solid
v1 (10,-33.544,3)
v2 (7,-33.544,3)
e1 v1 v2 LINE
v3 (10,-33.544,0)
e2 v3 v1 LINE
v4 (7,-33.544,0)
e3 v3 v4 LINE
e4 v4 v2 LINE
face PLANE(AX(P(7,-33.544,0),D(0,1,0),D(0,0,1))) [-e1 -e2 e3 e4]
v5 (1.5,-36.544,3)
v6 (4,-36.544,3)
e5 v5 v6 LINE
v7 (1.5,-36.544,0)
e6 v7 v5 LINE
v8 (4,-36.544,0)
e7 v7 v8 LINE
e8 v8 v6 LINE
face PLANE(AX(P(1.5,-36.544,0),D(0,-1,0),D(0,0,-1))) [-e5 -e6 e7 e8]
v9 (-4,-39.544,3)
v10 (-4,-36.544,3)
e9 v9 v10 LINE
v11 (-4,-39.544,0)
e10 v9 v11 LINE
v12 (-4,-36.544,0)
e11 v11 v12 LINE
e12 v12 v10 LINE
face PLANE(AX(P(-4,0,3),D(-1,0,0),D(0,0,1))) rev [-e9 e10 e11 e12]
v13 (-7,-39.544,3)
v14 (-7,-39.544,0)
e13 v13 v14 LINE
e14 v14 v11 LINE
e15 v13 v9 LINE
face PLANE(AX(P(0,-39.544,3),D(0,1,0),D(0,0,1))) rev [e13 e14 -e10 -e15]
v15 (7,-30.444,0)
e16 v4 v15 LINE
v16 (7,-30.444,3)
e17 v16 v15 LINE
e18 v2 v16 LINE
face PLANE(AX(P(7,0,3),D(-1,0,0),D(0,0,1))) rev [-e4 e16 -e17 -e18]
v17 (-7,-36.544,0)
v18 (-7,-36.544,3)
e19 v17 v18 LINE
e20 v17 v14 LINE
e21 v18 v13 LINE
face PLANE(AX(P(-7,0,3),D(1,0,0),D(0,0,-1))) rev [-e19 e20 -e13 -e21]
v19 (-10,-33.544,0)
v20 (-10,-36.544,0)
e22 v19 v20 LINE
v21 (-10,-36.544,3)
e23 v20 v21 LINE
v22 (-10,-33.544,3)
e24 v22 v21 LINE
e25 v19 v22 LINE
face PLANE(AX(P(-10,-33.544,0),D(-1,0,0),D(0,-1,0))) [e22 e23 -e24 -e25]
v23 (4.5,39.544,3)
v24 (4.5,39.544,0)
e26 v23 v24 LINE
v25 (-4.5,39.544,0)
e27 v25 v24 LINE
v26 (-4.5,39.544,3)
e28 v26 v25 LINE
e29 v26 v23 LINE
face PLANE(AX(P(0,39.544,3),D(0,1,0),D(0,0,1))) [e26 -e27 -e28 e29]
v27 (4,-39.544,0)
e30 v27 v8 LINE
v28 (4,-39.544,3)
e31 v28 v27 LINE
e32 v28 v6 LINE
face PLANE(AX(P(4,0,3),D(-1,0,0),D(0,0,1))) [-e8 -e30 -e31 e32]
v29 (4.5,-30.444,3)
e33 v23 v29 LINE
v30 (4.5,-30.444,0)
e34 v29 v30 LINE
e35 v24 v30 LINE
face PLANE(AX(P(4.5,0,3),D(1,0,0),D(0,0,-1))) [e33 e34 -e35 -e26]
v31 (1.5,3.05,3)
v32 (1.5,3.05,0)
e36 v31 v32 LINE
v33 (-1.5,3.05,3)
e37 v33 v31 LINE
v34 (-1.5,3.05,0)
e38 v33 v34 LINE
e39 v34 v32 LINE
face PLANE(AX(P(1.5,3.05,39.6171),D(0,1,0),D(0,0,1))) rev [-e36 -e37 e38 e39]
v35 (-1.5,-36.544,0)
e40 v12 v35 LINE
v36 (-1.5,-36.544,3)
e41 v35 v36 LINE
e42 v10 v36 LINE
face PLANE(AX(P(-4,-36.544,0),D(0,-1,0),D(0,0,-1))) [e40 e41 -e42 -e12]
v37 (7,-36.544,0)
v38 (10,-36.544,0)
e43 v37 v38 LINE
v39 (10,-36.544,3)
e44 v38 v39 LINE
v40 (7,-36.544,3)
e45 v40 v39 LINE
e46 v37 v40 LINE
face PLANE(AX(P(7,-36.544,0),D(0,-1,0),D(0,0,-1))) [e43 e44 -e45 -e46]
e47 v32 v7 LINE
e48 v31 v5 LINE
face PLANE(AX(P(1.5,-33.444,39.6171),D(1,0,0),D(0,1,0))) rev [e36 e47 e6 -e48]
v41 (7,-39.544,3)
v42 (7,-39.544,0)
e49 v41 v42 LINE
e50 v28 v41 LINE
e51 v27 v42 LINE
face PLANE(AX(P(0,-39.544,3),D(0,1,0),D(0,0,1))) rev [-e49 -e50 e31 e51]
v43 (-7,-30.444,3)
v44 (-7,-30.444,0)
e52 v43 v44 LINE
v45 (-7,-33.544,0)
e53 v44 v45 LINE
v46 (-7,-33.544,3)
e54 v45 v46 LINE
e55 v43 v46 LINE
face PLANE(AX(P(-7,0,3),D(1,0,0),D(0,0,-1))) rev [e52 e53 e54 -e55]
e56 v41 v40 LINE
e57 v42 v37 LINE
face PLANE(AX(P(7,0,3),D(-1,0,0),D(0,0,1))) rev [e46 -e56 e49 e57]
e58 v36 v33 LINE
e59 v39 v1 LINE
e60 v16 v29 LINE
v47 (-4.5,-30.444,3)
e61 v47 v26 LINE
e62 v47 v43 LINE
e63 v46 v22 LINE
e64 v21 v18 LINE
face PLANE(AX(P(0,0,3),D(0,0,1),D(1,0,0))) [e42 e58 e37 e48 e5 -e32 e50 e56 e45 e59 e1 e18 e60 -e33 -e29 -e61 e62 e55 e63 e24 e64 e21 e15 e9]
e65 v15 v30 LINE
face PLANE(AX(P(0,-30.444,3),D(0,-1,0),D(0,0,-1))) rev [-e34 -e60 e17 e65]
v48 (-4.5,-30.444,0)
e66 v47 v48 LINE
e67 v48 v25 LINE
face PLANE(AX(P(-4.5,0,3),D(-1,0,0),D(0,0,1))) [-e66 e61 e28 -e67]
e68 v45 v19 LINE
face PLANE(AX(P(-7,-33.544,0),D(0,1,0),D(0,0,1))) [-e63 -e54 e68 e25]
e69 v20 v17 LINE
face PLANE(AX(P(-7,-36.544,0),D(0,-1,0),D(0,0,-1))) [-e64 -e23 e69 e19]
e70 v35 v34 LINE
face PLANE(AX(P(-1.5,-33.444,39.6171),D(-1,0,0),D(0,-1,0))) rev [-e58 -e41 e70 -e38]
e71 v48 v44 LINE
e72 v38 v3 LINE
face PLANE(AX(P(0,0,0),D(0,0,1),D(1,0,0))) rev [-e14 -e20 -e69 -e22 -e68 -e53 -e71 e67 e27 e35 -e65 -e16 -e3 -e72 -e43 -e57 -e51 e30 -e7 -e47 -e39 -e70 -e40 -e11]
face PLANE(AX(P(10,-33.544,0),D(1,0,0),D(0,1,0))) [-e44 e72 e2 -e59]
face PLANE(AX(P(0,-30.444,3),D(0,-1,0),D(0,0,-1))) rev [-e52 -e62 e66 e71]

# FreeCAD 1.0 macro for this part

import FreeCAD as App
import Part
import Sketcher
from FreeCAD import Vector
Q = App.Units.Quantity

doc = App.newDocument("Part")
body = doc.addObject("PartDesign::Body", "Body")

# Sketch on XY plane
sketch1 = doc.addObject("Sketcher::SketchObject", "Sketch")
body.addObject(sketch1)
sketch1.AttachmentSupport = (doc.XY_Plane, [""])
sketch1.MapMode = "FlatFace"
sketch1.addGeometry(Part.LineSegment(Vector(4.5, 39.5, 0), Vector(-4.5, 39.5, 0)), False)
sketch1.addGeometry(Part.LineSegment(Vector(-4.5, 39.5, 0), Vector(-4.5, -30.4, 0)), False)
sketch1.addGeometry(Part.LineSegment(Vector(-4.5, -30.4, 0), Vector(-7, -30.4, 0)), False)
sketch1.addGeometry(Part.LineSegment(Vector(-7, -30.4, 0), Vector(-7, -39.5, 0)), False)
sketch1.addGeometry(Part.LineSegment(Vector(-7, -39.5, 0), Vector(-4, -39.5, 0)), False)
sketch1.addGeometry(Part.LineSegment(Vector(-4, -39.5, 0), Vector(-4, -33.4, 0)), False)
sketch1.addGeometry(Part.LineSegment(Vector(-4, -33.4, 0), Vector(4, -33.4, 0)), False)
sketch1.addGeometry(Part.LineSegment(Vector(4, -33.4, 0), Vector(4, -39.5, 0)), False)
sketch1.addGeometry(Part.LineSegment(Vector(4, -39.5, 0), Vector(7, -39.5, 0)), False)
sketch1.addGeometry(Part.LineSegment(Vector(7, -39.5, 0), Vector(7, -30.4, 0)), False)
sketch1.addGeometry(Part.LineSegment(Vector(7, -30.4, 0), Vector(4.5, -30.4, 0)), False)
sketch1.addGeometry(Part.LineSegment(Vector(4.5, -30.4, 0), Vector(4.5, 39.5, 0)), False)
sketch1.addConstraint(Sketcher.Constraint("Coincident", 0, 2, 1, 1))
sketch1.addConstraint(Sketcher.Constraint("Coincident", 1, 2, 2, 1))
sketch1.addConstraint(Sketcher.Constraint("Coincident", 2, 2, 3, 1))
sketch1.addConstraint(Sketcher.Constraint("Coincident", 3, 2, 4, 1))
sketch1.addConstraint(Sketcher.Constraint("Coincident", 4, 2, 5, 1))
sketch1.addConstraint(Sketcher.Constraint("Coincident", 5, 2, 6, 1))
sketch1.addConstraint(Sketcher.Constraint("Coincident", 6, 2, 7, 1))
sketch1.addConstraint(Sketcher.Constraint("Coincident", 7, 2, 8, 1))
sketch1.addConstraint(Sketcher.Constraint("Coincident", 8, 2, 9, 1))
sketch1.addConstraint(Sketcher.Constraint("Coincident", 9, 2, 10, 1))
sketch1.addConstraint(Sketcher.Constraint("Coincident", 10, 2, 11, 1))
sketch1.addConstraint(Sketcher.Constraint("Coincident", 11, 2, 0, 1))
sketch1.addConstraint(Sketcher.Constraint("Horizontal", 0))
sketch1.addConstraint(Sketcher.Constraint("Vertical", 1))
sketch1.addConstraint(Sketcher.Constraint("Horizontal", 2))
sketch1.addConstraint(Sketcher.Constraint("Vertical", 3))
sketch1.addConstraint(Sketcher.Constraint("Horizontal", 4))
sketch1.addConstraint(Sketcher.Constraint("Vertical", 5))
sketch1.addConstraint(Sketcher.Constraint("Horizontal", 6))
sketch1.addConstraint(Sketcher.Constraint("Vertical", 7))
sketch1.addConstraint(Sketcher.Constraint("Horizontal", 8))
sketch1.addConstraint(Sketcher.Constraint("Vertical", 9))
sketch1.addConstraint(Sketcher.Constraint("Horizontal", 10))
sketch1.addConstraint(Sketcher.Constraint("Vertical", 11))
sketch1.addConstraint(Sketcher.Constraint("Symmetric", 4, 2, 7, 2, -2))
sketch1.addConstraint(Sketcher.Constraint("Symmetric", 2, 2, 9, 2, -2))
sketch1.addConstraint(Sketcher.Constraint("Equal", 2, 10))
sketch1.addConstraint(Sketcher.Constraint("DistanceX", 0, 2, 0, 1, Q("9 mm")))
sketch1.addConstraint(Sketcher.Constraint("DistanceX", 4, 1, 4, 2, Q("3 mm")))
sketch1.addConstraint(Sketcher.Constraint("DistanceX", 6, 1, 6, 2, Q("8 mm")))
sketch1.addConstraint(Sketcher.Constraint("DistanceY", 3, 2, 3, 1, Q("9.1 mm")))
sketch1.addConstraint(Sketcher.Constraint("DistanceY", 5, 1, 5, 2, Q("6.1 mm")))
sketch1.addConstraint(Sketcher.Constraint("DistanceY", 1, 2, 1, 1, Q("69.988 mm")))
sketch1.addConstraint(Sketcher.Constraint("DistanceY", -1, 1, 0, 2, Q("39.544 mm")))
pad1 = doc.addObject("PartDesign::Pad", "Pad")
body.addObject(pad1)
pad1.Profile = sketch1
pad1.Length = 3

# Sketch on XY plane
sketch2 = doc.addObject("Sketcher::SketchObject", "Sketch001")
body.addObject(sketch2)
sketch2.AttachmentSupport = (doc.XY_Plane, [""])
sketch2.MapMode = "FlatFace"
sketch2.addGeometry(Part.LineSegment(Vector(1.5, 3, 0), Vector(1.5, -33.4, 0)), False)
sketch2.addGeometry(Part.LineSegment(Vector(1.5, -33.4, 0), Vector(-1.5, -33.4, 0)), False)
sketch2.addGeometry(Part.LineSegment(Vector(-1.5, -33.4, 0), Vector(-1.5, 3, 0)), False)
sketch2.addGeometry(Part.LineSegment(Vector(-1.5, 3, 0), Vector(1.5, 3, 0)), False)
sketch2.addConstraint(Sketcher.Constraint("Coincident", 0, 2, 1, 1))
sketch2.addConstraint(Sketcher.Constraint("Coincident", 1, 2, 2, 1))
sketch2.addConstraint(Sketcher.Constraint("Coincident", 2, 2, 3, 1))
sketch2.addConstraint(Sketcher.Constraint("Coincident", 3, 2, 0, 1))
sketch2.addConstraint(Sketcher.Constraint("Vertical", 0))
sketch2.addConstraint(Sketcher.Constraint("Horizontal", 1))
sketch2.addConstraint(Sketcher.Constraint("Vertical", 2))
sketch2.addConstraint(Sketcher.Constraint("Horizontal", 3))
sketch2.addConstraint(Sketcher.Constraint("DistanceX", 1, 2, 1, 1, Q("3 mm")))
sketch2.addConstraint(Sketcher.Constraint("DistanceX", -1, 1, 0, 2, Q("1.5 mm")))
sketch2.addConstraint(Sketcher.Constraint("DistanceY", 0, 2, 0, 1, Q("36.494 mm")))
sketch2.addConstraint(Sketcher.Constraint("DistanceY", -1, 1, 2, 2, Q("3.05 mm")))
pocket1 = doc.addObject("PartDesign::Pocket", "Pocket")
body.addObject(pocket1)
pocket1.Profile = sketch2
pocket1.Length = 3
pocket1.Reversed = True

# Sketch on XY plane
sketch3 = doc.addObject("Sketcher::SketchObject", "Sketch002")
body.addObject(sketch3)
sketch3.AttachmentSupport = (doc.XY_Plane, [""])
sketch3.MapMode = "FlatFace"
sketch3.AttachmentOffset = App.Placement(Vector(0, 0, 3), App.Rotation())
sketch3.addGeometry(Part.LineSegment(Vector(-10, -33.5, 0), Vector(-10, -36.5, 0)), False)
sketch3.addGeometry(Part.LineSegment(Vector(-10, -36.5, 0), Vector(-7, -36.5, 0)), False)
sketch3.addGeometry(Part.LineSegment(Vector(-7, -36.5, 0), Vector(-7, -33.5, 0)), False)
sketch3.addGeometry(Part.LineSegment(Vector(-7, -33.5, 0), Vector(-10, -33.5, 0)), False)
sketch3.addGeometry(Part.LineSegment(Vector(7, -33.5, 0), Vector(7, -36.5, 0)), False)
sketch3.addGeometry(Part.LineSegment(Vector(7, -36.5, 0), Vector(10, -36.5, 0)), False)
sketch3.addGeometry(Part.LineSegment(Vector(10, -36.5, 0), Vector(10, -33.5, 0)), False)
sketch3.addGeometry(Part.LineSegment(Vector(10, -33.5, 0), Vector(7, -33.5, 0)), False)
sketch3.addConstraint(Sketcher.Constraint("Coincident", 0, 2, 1, 1))
sketch3.addConstraint(Sketcher.Constraint("Coincident", 1, 2, 2, 1))
sketch3.addConstraint(Sketcher.Constraint("Coincident", 2, 2, 3, 1))
sketch3.addConstraint(Sketcher.Constraint("Coincident", 3, 2, 0, 1))
sketch3.addConstraint(Sketcher.Constraint("Coincident", 4, 2, 5, 1))
sketch3.addConstraint(Sketcher.Constraint("Coincident", 5, 2, 6, 1))
sketch3.addConstraint(Sketcher.Constraint("Coincident", 6, 2, 7, 1))
sketch3.addConstraint(Sketcher.Constraint("Coincident", 7, 2, 4, 1))
sketch3.addConstraint(Sketcher.Constraint("Vertical", 0))
sketch3.addConstraint(Sketcher.Constraint("Horizontal", 1))
sketch3.addConstraint(Sketcher.Constraint("Vertical", 2))
sketch3.addConstraint(Sketcher.Constraint("Horizontal", 3))
sketch3.addConstraint(Sketcher.Constraint("Vertical", 4))
sketch3.addConstraint(Sketcher.Constraint("Horizontal", 5))
sketch3.addConstraint(Sketcher.Constraint("Vertical", 6))
sketch3.addConstraint(Sketcher.Constraint("Horizontal", 7))
sketch3.addConstraint(Sketcher.Constraint("Symmetric", 1, 2, 4, 2, -2))
sketch3.addConstraint(Sketcher.Constraint("Symmetric", 3, 2, 6, 2, -2))
sketch3.addConstraint(Sketcher.Constraint("Equal", 7, 0))
sketch3.addConstraint(Sketcher.Constraint("DistanceX", 1, 1, 1, 2, Q("3 mm")))
sketch3.addConstraint(Sketcher.Constraint("DistanceX", 0, 2, -1, 1, Q("10 mm")))
sketch3.addConstraint(Sketcher.Constraint("DistanceY", 0, 2, -1, 1, Q("36.544 mm")))
pad2 = doc.addObject("PartDesign::Pad", "Pad001")
body.addObject(pad2)
pad2.Profile = sketch3
pad2.Length = 3
pad2.Reversed = True

# Sketch on XY plane
sketch4 = doc.addObject("Sketcher::SketchObject", "Sketch003")
body.addObject(sketch4)
sketch4.AttachmentSupport = (doc.XY_Plane, [""])
sketch4.MapMode = "FlatFace"
sketch4.AttachmentOffset = App.Placement(Vector(0, 0, 3), App.Rotation())
sketch4.addGeometry(Part.LineSegment(Vector(-4, -33.4, 0), Vector(-4, -36.5, 0)), False)
sketch4.addGeometry(Part.LineSegment(Vector(-4, -36.5, 0), Vector(-1.5, -36.5, 0)), False)
sketch4.addGeometry(Part.LineSegment(Vector(-1.5, -36.5, 0), Vector(-1.5, -33.4, 0)), False)
sketch4.addGeometry(Part.LineSegment(Vector(-1.5, -33.4, 0), Vector(-4, -33.4, 0)), False)
sketch4.addGeometry(Part.LineSegment(Vector(1.5, -33.4, 0), Vector(1.5, -36.5, 0)), False)
sketch4.addGeometry(Part.LineSegment(Vector(1.5, -36.5, 0), Vector(4, -36.5, 0)), False)
sketch4.addGeometry(Part.LineSegment(Vector(4, -36.5, 0), Vector(4, -33.4, 0)), False)
sketch4.addGeometry(Part.LineSegment(Vector(4, -33.4, 0), Vector(1.5, -33.4, 0)), False)
sketch4.addConstraint(Sketcher.Constraint("Coincident", 0, 2, 1, 1))
sketch4.addConstraint(Sketcher.Constraint("Coincident", 1, 2, 2, 1))
sketch4.addConstraint(Sketcher.Constraint("Coincident", 2, 2, 3, 1))
sketch4.addConstraint(Sketcher.Constraint("Coincident", 3, 2, 0, 1))
sketch4.addConstraint(Sketcher.Constraint("Coincident", 4, 2, 5, 1))
sketch4.addConstraint(Sketcher.Constraint("Coincident", 5, 2, 6, 1))
sketch4.addConstraint(Sketcher.Constraint("Coincident", 6, 2, 7, 1))
sketch4.addConstraint(Sketcher.Constraint("Coincident", 7, 2, 4, 1))
sketch4.addConstraint(Sketcher.Constraint("Vertical", 0))
sketch4.addConstraint(Sketcher.Constraint("Horizontal", 1))
sketch4.addConstraint(Sketcher.Constraint("Vertical", 2))
sketch4.addConstraint(Sketcher.Constraint("Horizontal", 3))
sketch4.addConstraint(Sketcher.Constraint("Vertical", 4))
sketch4.addConstraint(Sketcher.Constraint("Horizontal", 5))
sketch4.addConstraint(Sketcher.Constraint("Vertical", 6))
sketch4.addConstraint(Sketcher.Constraint("Horizontal", 7))
sketch4.addConstraint(Sketcher.Constraint("Symmetric", 1, 2, 4, 2, -2))
sketch4.addConstraint(Sketcher.Constraint("Symmetric", 3, 2, 6, 2, -2))
sketch4.addConstraint(Sketcher.Constraint("DistanceX", 1, 1, 1, 2, Q("2.5 mm")))
sketch4.addConstraint(Sketcher.Constraint("DistanceY", 0, 2, 0, 1, Q("3.1 mm")))
sketch4.addConstraint(Sketcher.Constraint("DistanceX", 0, 2, -1, 1, Q("4 mm")))
sketch4.addConstraint(Sketcher.Constraint("DistanceY", 0, 2, -1, 1, Q("36.544 mm")))
pad3 = doc.addObject("PartDesign::Pad", "Pad002")
body.addObject(pad3)
pad3.Profile = sketch4
pad3.Length = 3
pad3.Reversed = True

doc.recompute()
